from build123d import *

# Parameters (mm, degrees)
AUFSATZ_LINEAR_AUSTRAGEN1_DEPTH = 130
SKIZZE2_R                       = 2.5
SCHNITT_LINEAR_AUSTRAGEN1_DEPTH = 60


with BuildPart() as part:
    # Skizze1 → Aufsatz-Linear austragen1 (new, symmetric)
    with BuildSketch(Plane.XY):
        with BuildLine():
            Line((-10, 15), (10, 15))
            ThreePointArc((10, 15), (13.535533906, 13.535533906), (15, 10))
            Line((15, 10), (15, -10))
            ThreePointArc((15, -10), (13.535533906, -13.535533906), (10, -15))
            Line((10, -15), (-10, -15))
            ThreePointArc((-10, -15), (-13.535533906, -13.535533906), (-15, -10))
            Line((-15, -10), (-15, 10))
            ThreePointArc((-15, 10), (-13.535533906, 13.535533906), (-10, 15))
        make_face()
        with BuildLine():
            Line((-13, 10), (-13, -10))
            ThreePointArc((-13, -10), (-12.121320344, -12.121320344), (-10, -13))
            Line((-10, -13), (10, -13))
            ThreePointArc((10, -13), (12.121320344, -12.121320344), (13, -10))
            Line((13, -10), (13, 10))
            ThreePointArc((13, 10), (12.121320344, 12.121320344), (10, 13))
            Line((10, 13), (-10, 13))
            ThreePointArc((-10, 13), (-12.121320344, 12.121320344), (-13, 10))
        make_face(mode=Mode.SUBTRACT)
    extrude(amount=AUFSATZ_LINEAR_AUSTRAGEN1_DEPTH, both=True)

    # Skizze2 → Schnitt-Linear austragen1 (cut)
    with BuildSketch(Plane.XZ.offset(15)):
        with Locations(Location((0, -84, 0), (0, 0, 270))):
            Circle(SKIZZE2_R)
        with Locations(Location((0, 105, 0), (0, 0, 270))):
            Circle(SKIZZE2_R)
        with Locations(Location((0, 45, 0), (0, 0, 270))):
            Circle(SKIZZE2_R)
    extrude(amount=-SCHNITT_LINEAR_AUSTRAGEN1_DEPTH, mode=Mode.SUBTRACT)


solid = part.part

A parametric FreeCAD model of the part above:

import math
import FreeCAD as App
import Part
import Sketcher

doc = App.newDocument("Part")
body = doc.addObject("PartDesign::Body", "Body")

# Sketch on XY plane
sketch1 = body.newObject("Sketcher::SketchObject", "Sketch")
sketch1.AttachmentSupport = (doc.getObject("XY_Plane"), [""])
sketch1.MapMode = "FlatFace"
sketch1.addGeometry([
    Part.LineSegment(App.Vector(10, 15, 0), App.Vector(-10, 15, 0)),  # 0
    Part.ArcOfCircle(Part.Circle(App.Vector(-10, 10, 0), App.Vector(0, 0, 1), 5), math.radians(90), math.radians(180)),  # 1
    Part.LineSegment(App.Vector(-15, 10, 0), App.Vector(-15, -10, 0)),  # 2
    Part.ArcOfCircle(Part.Circle(App.Vector(-10, -10, 0), App.Vector(0, 0, 1), 5), math.radians(180), math.radians(270)),  # 3
    Part.LineSegment(App.Vector(-10, -15, 0), App.Vector(10, -15, 0)),  # 4
    Part.ArcOfCircle(Part.Circle(App.Vector(10, -10, 0), App.Vector(0, 0, 1), 5), math.radians(-90), math.radians(0)),  # 5
    Part.LineSegment(App.Vector(15, -10, 0), App.Vector(15, 10, 0)),  # 6
    Part.ArcOfCircle(Part.Circle(App.Vector(10, 10, 0), App.Vector(0, 0, 1), 5), math.radians(0), math.radians(90)),  # 7
    Part.ArcOfCircle(Part.Circle(App.Vector(-10, 10, 0), App.Vector(0, 0, 1), 3), math.radians(90), math.radians(180)),  # 8
    Part.LineSegment(App.Vector(-10, 13, 0), App.Vector(10, 13, 0)),  # 9
    Part.ArcOfCircle(Part.Circle(App.Vector(10, 10, 0), App.Vector(0, 0, 1), 3), math.radians(0), math.radians(90)),  # 10
    Part.LineSegment(App.Vector(13, 10, 0), App.Vector(13, -10, 0)),  # 11
    Part.ArcOfCircle(Part.Circle(App.Vector(10, -10, 0), App.Vector(0, 0, 1), 3), math.radians(-90), math.radians(0)),  # 12
    Part.LineSegment(App.Vector(10, -13, 0), App.Vector(-10, -13, 0)),  # 13
    Part.ArcOfCircle(Part.Circle(App.Vector(-10, -10, 0), App.Vector(0, 0, 1), 3), math.radians(180), math.radians(270)),  # 14
    Part.LineSegment(App.Vector(-13, -10, 0), App.Vector(-13, 10, 0)),  # 15
], False)
sketch1.addConstraint([
    Sketcher.Constraint("Tangent", 0, 2, 1, 1),
    Sketcher.Constraint("Tangent", 1, 2, 2, 1),
    Sketcher.Constraint("Tangent", 2, 2, 3, 1),
    Sketcher.Constraint("Tangent", 3, 2, 4, 1),
    Sketcher.Constraint("Tangent", 4, 2, 5, 1),
    Sketcher.Constraint("Tangent", 5, 2, 6, 1),
    Sketcher.Constraint("Tangent", 6, 2, 7, 1),
    Sketcher.Constraint("Tangent", 7, 2, 0, 1),
    Sketcher.Constraint("Tangent", 8, 1, 9, 1),
    Sketcher.Constraint("Tangent", 9, 2, 10, 2),
    Sketcher.Constraint("Tangent", 10, 1, 11, 1),
    Sketcher.Constraint("Tangent", 11, 2, 12, 2),
    Sketcher.Constraint("Tangent", 12, 1, 13, 1),
    Sketcher.Constraint("Tangent", 13, 2, 14, 2),
    Sketcher.Constraint("Tangent", 14, 1, 15, 1),
    Sketcher.Constraint("Tangent", 15, 2, 8, 2),
    Sketcher.Constraint("Horizontal", 0),
    Sketcher.Constraint("Vertical", 2),
    Sketcher.Constraint("Horizontal", 4),
    Sketcher.Constraint("Vertical", 6),
    Sketcher.Constraint("Horizontal", 9),
    Sketcher.Constraint("Vertical", 11),
    Sketcher.Constraint("Horizontal", 13),
    Sketcher.Constraint("Vertical", 15),
    Sketcher.Constraint("Coincident", 8, 3, 1, 3),
    Sketcher.Constraint("Coincident", 10, 3, 7, 3),
    Sketcher.Constraint("Coincident", 12, 3, 5, 3),
    Sketcher.Constraint("Equal", 1, 3),
    Sketcher.Constraint("Equal", 3, 5),
    Sketcher.Constraint("Equal", 5, 7),
    Sketcher.Constraint("Equal", 12, 14),
    Sketcher.Constraint("Symmetric", 1, 3, 5, 3, -1, 1),
    Sketcher.Constraint("Equal", 13, 2),
    Sketcher.Constraint("Radius", 1, 5.0),
    Sketcher.Constraint("Radius", 8, 3.0),
    Sketcher.Constraint("DistanceX", 0, 2, 0, 1, 20.0),
])
pad1 = body.newObject("PartDesign::Pad", "Pad")
pad1.Profile = sketch1
pad1.Length = 260
pad1.Midplane = True

# Sketch on XZ plane
sketch2 = body.newObject("Sketcher::SketchObject", "Sketch001")
sketch2.AttachmentSupport = (doc.getObject("XZ_Plane"), [""])
sketch2.MapMode = "FlatFace"
sketch2.AttachmentOffset = App.Placement(App.Vector(0, 0, 15), App.Rotation())
sketch2.addGeometry([
    Part.Circle(App.Vector(0, -84, 0), App.Vector(0, 0, 1), 2.5),
    Part.Circle(App.Vector(0, 105, 0), App.Vector(0, 0, 1), 2.5),
    Part.Circle(App.Vector(0, 45, 0), App.Vector(0, 0, 1), 2.5),
], False)
sketch2.addConstraint([
    Sketcher.Constraint("Equal", 0, 1),
    Sketcher.Constraint("Equal", 1, 2),
    Sketcher.Constraint("PointOnObject", 0, 3, -2),
    Sketcher.Constraint("PointOnObject", 1, 3, -2),
    Sketcher.Constraint("PointOnObject", 2, 3, -2),
    Sketcher.Constraint("Diameter", 0, 5.0),
    Sketcher.Constraint("DistanceY", 0, 3, -1, 1, 84.0),
    Sketcher.Constraint("DistanceY", -1, 1, 1, 3, 105.0),
    Sketcher.Constraint("DistanceY", -1, 1, 2, 3, 45.0),
])
pocket1 = body.newObject("PartDesign::Pocket", "Pocket")
pocket1.Profile = sketch2
pocket1.Length = 60

doc.recompute()
